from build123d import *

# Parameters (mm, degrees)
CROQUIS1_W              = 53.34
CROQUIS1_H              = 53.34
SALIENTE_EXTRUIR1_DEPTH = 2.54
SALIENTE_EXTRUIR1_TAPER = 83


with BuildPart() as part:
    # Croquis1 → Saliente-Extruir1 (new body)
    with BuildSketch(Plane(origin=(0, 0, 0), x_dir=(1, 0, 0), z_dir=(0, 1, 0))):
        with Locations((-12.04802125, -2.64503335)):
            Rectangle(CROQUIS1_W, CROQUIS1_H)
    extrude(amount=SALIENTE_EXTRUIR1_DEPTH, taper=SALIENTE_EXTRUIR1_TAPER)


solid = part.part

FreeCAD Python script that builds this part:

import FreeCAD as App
import Part
import Sketcher
from FreeCAD import Vector
Q = App.Units.Quantity

doc = App.newDocument("Part")
body = doc.addObject("PartDesign::Body", "Body")

# Sketch on XZ plane
sketch1 = doc.addObject("Sketcher::SketchObject", "Sketch")
body.addObject(sketch1)
sketch1.AttachmentSupport = (doc.XZ_Plane, [""])
sketch1.MapMode = "FlatFace"
sketch1.addGeometry([
    Part.LineSegment(Vector(-39, -24, 0), Vector(-39, 29, 0)),
    Part.LineSegment(Vector(-39, 29, 0), Vector(15, 29, 0)),
    Part.LineSegment(Vector(15, 29, 0), Vector(15, -24, 0)),
    Part.LineSegment(Vector(15, -24, 0), Vector(-39, -24, 0)),
], False)
sketch1.addConstraint([
    Sketcher.Constraint("Coincident", 0, 2, 1, 1),
    Sketcher.Constraint("Coincident", 1, 2, 2, 1),
    Sketcher.Constraint("Coincident", 2, 2, 3, 1),
    Sketcher.Constraint("Coincident", 3, 2, 0, 1),
    Sketcher.Constraint("Vertical", 0),
    Sketcher.Constraint("Horizontal", 1),
    Sketcher.Constraint("Vertical", 2),
    Sketcher.Constraint("Horizontal", 3),
    Sketcher.Constraint("Equal", 3, 0),
    Sketcher.Constraint("DistanceX", 1, 1, 1, 2, Q("2.1 in")),
    Sketcher.Constraint("DistanceX", 0, 2, -1, 1, Q("38.718021 mm")),
    Sketcher.Constraint("DistanceY", -1, 1, 0, 2, Q("29.315033 mm")),
])
pad1 = doc.addObject("PartDesign::Pad", "Pad")
body.addObject(pad1)
pad1.Profile = sketch1
pad1.Length = Q("0.1 in")
pad1.Reversed = True
pad1.TaperAngle = -83

doc.recompute()
